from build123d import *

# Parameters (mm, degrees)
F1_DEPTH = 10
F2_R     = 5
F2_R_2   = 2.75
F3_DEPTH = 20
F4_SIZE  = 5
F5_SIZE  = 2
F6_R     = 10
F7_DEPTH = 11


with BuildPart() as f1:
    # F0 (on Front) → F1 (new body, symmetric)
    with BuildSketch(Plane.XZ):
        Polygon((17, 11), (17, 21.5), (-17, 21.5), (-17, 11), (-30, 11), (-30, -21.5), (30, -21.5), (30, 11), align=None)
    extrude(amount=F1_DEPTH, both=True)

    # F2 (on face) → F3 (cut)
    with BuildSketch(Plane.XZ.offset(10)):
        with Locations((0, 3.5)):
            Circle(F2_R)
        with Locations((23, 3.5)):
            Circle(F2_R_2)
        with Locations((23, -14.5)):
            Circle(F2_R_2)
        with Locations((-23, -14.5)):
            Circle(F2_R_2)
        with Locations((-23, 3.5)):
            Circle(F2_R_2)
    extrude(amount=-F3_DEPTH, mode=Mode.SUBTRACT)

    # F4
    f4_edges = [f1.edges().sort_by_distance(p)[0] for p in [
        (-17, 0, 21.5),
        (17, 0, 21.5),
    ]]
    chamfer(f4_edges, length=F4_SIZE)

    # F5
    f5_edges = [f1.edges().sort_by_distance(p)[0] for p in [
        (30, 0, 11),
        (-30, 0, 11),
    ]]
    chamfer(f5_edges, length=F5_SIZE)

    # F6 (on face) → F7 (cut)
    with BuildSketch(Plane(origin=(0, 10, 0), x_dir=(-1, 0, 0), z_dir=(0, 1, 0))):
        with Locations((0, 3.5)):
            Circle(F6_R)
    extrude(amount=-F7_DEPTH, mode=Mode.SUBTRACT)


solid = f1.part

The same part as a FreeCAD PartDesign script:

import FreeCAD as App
import Part
import Sketcher
from FreeCAD import Vector
Q = App.Units.Quantity


def edges_at(feature, points):
    """Names of the edges that pass closest to the given points."""
    edges = feature.Shape.Edges
    near = lambda p: min(range(len(edges)), key=lambda i: edges[i].distToShape(Part.Vertex(*p))[0])
    return sorted({f"Edge{near(p) + 1}" for p in points})


def add_polygon(sketch, points):
    """Adds a closed chain of lines whose ends are joined by coincident constraints."""
    first, n = sketch.GeometryCount, len(points)
    for a, b in zip(points, points[1:] + points[:1]):
        sketch.addGeometry(Part.LineSegment(App.Vector(*a, 0), App.Vector(*b, 0)), False)
    for i in range(n):
        sketch.addConstraint(Sketcher.Constraint("Coincident", first + i, 2, first + (i + 1) % n, 1))

doc = App.newDocument("Part")
body = doc.addObject("PartDesign::Body", "Body")

sketch1 = body.newObject("Sketcher::SketchObject", "Sketch")
sketch1.AttachmentSupport = (doc.getObject("XZ_Plane"), [""])
sketch1.MapMode = "FlatFace"
add_polygon(sketch1, [(17, 11), (17, 22), (-17, 22), (-17, 11), (-30, 11), (-30, -22), (30, -22), (30, 11)])
sketch1.addConstraint(Sketcher.Constraint("Vertical", 0))
sketch1.addConstraint(Sketcher.Constraint("Horizontal", 1))
sketch1.addConstraint(Sketcher.Constraint("Vertical", 2))
sketch1.addConstraint(Sketcher.Constraint("Horizontal", 3))
sketch1.addConstraint(Sketcher.Constraint("Vertical", 4))
sketch1.addConstraint(Sketcher.Constraint("Horizontal", 5))
sketch1.addConstraint(Sketcher.Constraint("Vertical", 6))
sketch1.addConstraint(Sketcher.Constraint("Horizontal", 7))
sketch1.addConstraint(Sketcher.Constraint("Symmetric", 3, 2, 6, 2, -2))
sketch1.addConstraint(Sketcher.Constraint("Equal", 3, 7))
sketch1.addConstraint(Sketcher.Constraint("DistanceX", 1, 2, 1, 1, Q("34 mm")))
sketch1.addConstraint(Sketcher.Constraint("DistanceX", 3, 2, 3, 1, Q("13 mm")))
sketch1.addConstraint(Sketcher.Constraint("DistanceY", 0, 1, 0, 2, Q("10.5 mm")))
sketch1.addConstraint(Sketcher.Constraint("DistanceY", 4, 2, 4, 1, Q("32.5 mm")))
sketch1.addConstraint(Sketcher.Constraint("DistanceY", -1, 1, 2, 2, Q("11 mm")))
pad1 = body.newObject("PartDesign::Pad", "Pad")
pad1.Profile = sketch1
pad1.Length = 20
pad1.Midplane = True

sketch2 = body.newObject("Sketcher::SketchObject", "Sketch001")
sketch2.AttachmentSupport = (doc.getObject("XZ_Plane"), [""])
sketch2.MapMode = "FlatFace"
sketch2.AttachmentOffset = App.Placement(Vector(0, 0, 10), App.Rotation())
sketch2.addGeometry(Part.Circle(Vector(0, 3.5, 0), Vector(0, 0, 1), 5), False)
sketch2.addGeometry(Part.Circle(Vector(23, 3.5, 0), Vector(0, 0, 1), 2.8), False)
sketch2.addGeometry(Part.Circle(Vector(23, -14.5, 0), Vector(0, 0, 1), 2.8), False)
sketch2.addGeometry(Part.Circle(Vector(-23, -14.5, 0), Vector(0, 0, 1), 2.8), False)
sketch2.addGeometry(Part.Circle(Vector(-23, 3.5, 0), Vector(0, 0, 1), 2.8), False)
sketch2.addConstraint(Sketcher.Constraint("Equal", 1, 2))
sketch2.addConstraint(Sketcher.Constraint("Equal", 2, 3))
sketch2.addConstraint(Sketcher.Constraint("Equal", 3, 4))
sketch2.addConstraint(Sketcher.Constraint("Symmetric", 2, 3, 3, 3, -2))
sketch2.addConstraint(Sketcher.Constraint("Symmetric", 1, 3, 4, 3, -2))
sketch2.addConstraint(Sketcher.Constraint("PointOnObject", 0, 3, -2))
sketch2.addConstraint(Sketcher.Constraint("Horizontal", 0, 3, 1, 3))
sketch2.addConstraint(Sketcher.Constraint("Vertical", 1, 3, 2, 3))
sketch2.addConstraint(Sketcher.Constraint("Diameter", 0, Q("10 mm")))
sketch2.addConstraint(Sketcher.Constraint("Diameter", 1, Q("5.5 mm")))
sketch2.addConstraint(Sketcher.Constraint("DistanceX", -1, 1, 1, 3, Q("23 mm")))
sketch2.addConstraint(Sketcher.Constraint("DistanceY", 2, 3, 1, 3, Q("18 mm")))
sketch2.addConstraint(Sketcher.Constraint("DistanceY", -1, 1, 0, 3, Q("3.5 mm")))
pocket1 = body.newObject("PartDesign::Pocket", "Pocket")
pocket1.Profile = sketch2
pocket1.Length = 20
doc.recompute()

chamfer = body.newObject("PartDesign::Chamfer", "Chamfer")
chamfer.Base = (pocket1, edges_at(pocket1, [(-17, 0, 21.5), (17, 0, 21.5)]))
chamfer.Size = 5
doc.recompute()

chamfer2 = body.newObject("PartDesign::Chamfer", "Chamfer001")
chamfer2.Base = (chamfer, edges_at(chamfer, [(30, 0, 11), (-30, 0, 11)]))
chamfer2.Size = 2

sketch3 = body.newObject("Sketcher::SketchObject", "Sketch002")
sketch3.AttachmentSupport = (doc.getObject("XZ_Plane"), [""])
sketch3.MapMode = "FlatFace"
sketch3.AttachmentOffset = App.Placement(Vector(0, 0, -10), App.Rotation())
sketch3.addGeometry(Part.Circle(Vector(0, 4, 0), Vector(0, 0, 1), 10), False)
sketch3.addConstraint(Sketcher.Constraint("PointOnObject", 0, 3, -2))
sketch3.addConstraint(Sketcher.Constraint("Diameter", 0, Q("20 mm")))
sketch3.addConstraint(Sketcher.Constraint("DistanceY", -1, 1, 0, 3, Q("3.5 mm")))
pocket2 = body.newObject("PartDesign::Pocket", "Pocket001")
pocket2.Profile = sketch3
pocket2.Length = 11
pocket2.Reversed = True

doc.recompute()
